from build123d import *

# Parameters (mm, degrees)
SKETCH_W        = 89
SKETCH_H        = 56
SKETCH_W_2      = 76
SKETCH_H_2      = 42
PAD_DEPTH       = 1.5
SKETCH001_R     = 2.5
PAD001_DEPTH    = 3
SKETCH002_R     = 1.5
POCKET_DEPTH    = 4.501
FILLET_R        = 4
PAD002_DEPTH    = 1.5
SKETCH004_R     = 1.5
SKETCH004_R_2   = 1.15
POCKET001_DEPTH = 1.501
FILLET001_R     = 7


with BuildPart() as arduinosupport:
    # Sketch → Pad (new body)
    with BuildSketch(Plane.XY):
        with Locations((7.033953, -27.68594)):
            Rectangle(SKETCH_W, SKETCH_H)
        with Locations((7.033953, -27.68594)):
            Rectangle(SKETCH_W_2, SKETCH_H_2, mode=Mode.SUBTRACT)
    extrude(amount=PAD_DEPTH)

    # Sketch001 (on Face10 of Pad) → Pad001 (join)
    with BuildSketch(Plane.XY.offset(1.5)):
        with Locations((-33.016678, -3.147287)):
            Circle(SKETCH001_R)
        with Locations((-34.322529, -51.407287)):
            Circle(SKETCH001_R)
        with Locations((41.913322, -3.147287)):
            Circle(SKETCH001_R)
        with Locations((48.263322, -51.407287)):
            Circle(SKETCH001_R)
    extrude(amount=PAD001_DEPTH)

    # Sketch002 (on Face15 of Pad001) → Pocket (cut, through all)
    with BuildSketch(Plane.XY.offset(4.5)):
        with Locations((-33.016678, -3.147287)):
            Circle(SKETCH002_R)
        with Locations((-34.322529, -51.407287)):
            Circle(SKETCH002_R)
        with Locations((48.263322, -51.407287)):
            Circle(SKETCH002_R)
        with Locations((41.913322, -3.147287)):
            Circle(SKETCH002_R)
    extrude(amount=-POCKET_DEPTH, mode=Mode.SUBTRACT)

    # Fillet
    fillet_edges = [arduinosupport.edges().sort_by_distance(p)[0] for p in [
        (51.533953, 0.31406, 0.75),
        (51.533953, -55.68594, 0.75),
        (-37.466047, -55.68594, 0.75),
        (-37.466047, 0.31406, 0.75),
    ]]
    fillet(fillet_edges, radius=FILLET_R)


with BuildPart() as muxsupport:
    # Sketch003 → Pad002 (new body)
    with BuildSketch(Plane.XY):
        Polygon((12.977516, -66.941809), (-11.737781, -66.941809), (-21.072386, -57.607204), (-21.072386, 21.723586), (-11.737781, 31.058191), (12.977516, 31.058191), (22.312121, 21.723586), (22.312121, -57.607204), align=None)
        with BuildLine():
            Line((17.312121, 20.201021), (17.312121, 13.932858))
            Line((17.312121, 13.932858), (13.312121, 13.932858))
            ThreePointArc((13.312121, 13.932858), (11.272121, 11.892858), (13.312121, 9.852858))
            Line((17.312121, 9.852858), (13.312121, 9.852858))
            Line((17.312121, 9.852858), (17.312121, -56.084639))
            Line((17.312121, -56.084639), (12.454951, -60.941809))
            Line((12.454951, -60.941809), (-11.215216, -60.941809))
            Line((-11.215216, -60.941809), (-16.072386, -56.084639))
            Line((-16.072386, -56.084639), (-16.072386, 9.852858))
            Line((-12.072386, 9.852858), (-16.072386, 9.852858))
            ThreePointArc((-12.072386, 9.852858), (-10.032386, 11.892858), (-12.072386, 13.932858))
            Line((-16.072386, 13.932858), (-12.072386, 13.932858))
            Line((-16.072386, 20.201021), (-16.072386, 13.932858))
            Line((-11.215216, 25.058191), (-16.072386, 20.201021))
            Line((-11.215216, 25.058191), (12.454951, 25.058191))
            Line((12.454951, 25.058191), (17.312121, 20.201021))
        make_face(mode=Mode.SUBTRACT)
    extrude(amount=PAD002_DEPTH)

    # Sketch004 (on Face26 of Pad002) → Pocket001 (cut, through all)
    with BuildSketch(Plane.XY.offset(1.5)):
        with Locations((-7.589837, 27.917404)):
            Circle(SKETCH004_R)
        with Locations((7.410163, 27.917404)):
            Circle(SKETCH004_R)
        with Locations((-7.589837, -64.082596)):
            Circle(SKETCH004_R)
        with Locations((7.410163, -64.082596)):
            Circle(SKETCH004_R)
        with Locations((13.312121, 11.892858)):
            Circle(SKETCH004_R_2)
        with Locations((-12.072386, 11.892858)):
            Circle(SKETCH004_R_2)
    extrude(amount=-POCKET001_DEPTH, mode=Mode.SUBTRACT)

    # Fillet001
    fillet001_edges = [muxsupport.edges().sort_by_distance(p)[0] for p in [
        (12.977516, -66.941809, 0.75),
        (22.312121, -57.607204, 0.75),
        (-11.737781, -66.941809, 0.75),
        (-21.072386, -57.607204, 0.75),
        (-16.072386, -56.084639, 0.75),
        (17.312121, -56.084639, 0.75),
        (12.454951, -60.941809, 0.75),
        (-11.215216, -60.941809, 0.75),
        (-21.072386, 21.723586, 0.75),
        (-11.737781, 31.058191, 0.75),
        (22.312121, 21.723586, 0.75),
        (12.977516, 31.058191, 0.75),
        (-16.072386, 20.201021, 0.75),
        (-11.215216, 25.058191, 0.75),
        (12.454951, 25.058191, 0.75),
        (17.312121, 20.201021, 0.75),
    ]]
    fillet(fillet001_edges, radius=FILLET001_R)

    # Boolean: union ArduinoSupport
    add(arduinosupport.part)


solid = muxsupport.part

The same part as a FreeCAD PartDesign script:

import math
import FreeCAD as App
import Part
import Sketcher


def edges_at(feature, points):
    """Names of the edges that pass closest to the given points."""
    edges = feature.Shape.Edges
    near = lambda p: min(range(len(edges)), key=lambda i: edges[i].distToShape(Part.Vertex(*p))[0])
    return sorted({f"Edge{near(p) + 1}" for p in points})

doc = App.newDocument("Part")
body = doc.addObject("PartDesign::Body", "Body")

sketch1 = doc.addObject("Sketcher::SketchObject", "Sketch")
body.addObject(sketch1)
sketch1.AttachmentSupport = (doc.XY_Plane, [""])
sketch1.MapMode = "FlatFace"
sketch1.addGeometry([
    Part.LineSegment(App.Vector(-37, 0, 0), App.Vector(-37, -56, 0)),
    Part.LineSegment(App.Vector(-37, -56, 0), App.Vector(52, -56, 0)),
    Part.LineSegment(App.Vector(52, -56, 0), App.Vector(52, 0, 0)),
    Part.LineSegment(App.Vector(52, 0, 0), App.Vector(-37, 0, 0)),
    Part.LineSegment(App.Vector(45, -49, 0), App.Vector(-31, -49, 0)),
    Part.LineSegment(App.Vector(-31, -49, 0), App.Vector(-31, -7, 0)),
    Part.LineSegment(App.Vector(-31, -7, 0), App.Vector(45, -7, 0)),
    Part.LineSegment(App.Vector(45, -7, 0), App.Vector(45, -49, 0)),
], False)
sketch1.addConstraint([
    Sketcher.Constraint("Coincident", 0, 2, 1, 1),
    Sketcher.Constraint("Coincident", 1, 2, 2, 1),
    Sketcher.Constraint("Coincident", 2, 2, 3, 1),
    Sketcher.Constraint("Coincident", 3, 2, 0, 1),
    Sketcher.Constraint("Coincident", 4, 2, 5, 1),
    Sketcher.Constraint("Coincident", 5, 2, 6, 1),
    Sketcher.Constraint("Coincident", 6, 2, 7, 1),
    Sketcher.Constraint("Coincident", 7, 2, 4, 1),
    Sketcher.Constraint("Vertical", 0),
    Sketcher.Constraint("Horizontal", 1),
    Sketcher.Constraint("Vertical", 2),
    Sketcher.Constraint("Horizontal", 3),
    Sketcher.Constraint("Horizontal", 4),
    Sketcher.Constraint("Vertical", 5),
    Sketcher.Constraint("Horizontal", 6),
    Sketcher.Constraint("Vertical", 7),
    Sketcher.Constraint("DistanceX", 1, 1, 1, 2, 89.0),
    Sketcher.Constraint("DistanceX", 4, 2, 4, 1, 76.0),
    Sketcher.Constraint("DistanceY", 0, 2, 0, 1, 56.0),
    Sketcher.Constraint("DistanceY", 5, 1, 5, 2, 42.0),
    Sketcher.Constraint("DistanceY", 0, 2, 4, 2, 7.0),
    Sketcher.Constraint("DistanceX", 0, 2, 4, 2, 6.5),
    Sketcher.Constraint("DistanceY", 0, 2, -1, 1, 55.68594),
    Sketcher.Constraint("DistanceX", 0, 2, -1, 1, 37.466047),
])
pad1 = doc.addObject("PartDesign::Pad", "Pad")
body.addObject(pad1)
pad1.Profile = sketch1
pad1.Length = 1.5

sketch2 = doc.addObject("Sketcher::SketchObject", "Sketch001")
body.addObject(sketch2)
sketch2.AttachmentSupport = (doc.XY_Plane, [""])
sketch2.MapMode = "FlatFace"
sketch2.AttachmentOffset = App.Placement(App.Vector(0, 0, 1.5), App.Rotation())
sketch2.addGeometry([
    Part.Circle(App.Vector(-33, -3.1, 0), App.Vector(0, 0, 1), 2.5),
    Part.Circle(App.Vector(-34.3, -51.4, 0), App.Vector(0, 0, 1), 2.5),
    Part.Circle(App.Vector(41.9, -3.1, 0), App.Vector(0, 0, 1), 2.5),
    Part.Circle(App.Vector(48.3, -51.4, 0), App.Vector(0, 0, 1), 2.5),
], False)
sketch2.addConstraint([
    Sketcher.Constraint("Equal", 0, 1),
    Sketcher.Constraint("Equal", 1, 2),
    Sketcher.Constraint("Equal", 2, 3),
    Sketcher.Constraint("Horizontal", 0, 3, 2, 3),
    Sketcher.Constraint("Horizontal", 1, 3, 3, 3),
    Sketcher.Constraint("Diameter", 0, 5.0),
    Sketcher.Constraint("DistanceY", 1, 3, 0, 3, 48.26),
    Sketcher.Constraint("DistanceX", 0, 3, 2, 3, 74.93),
    Sketcher.Constraint("DistanceX", 2, 3, 3, 3, 6.35),
    Sketcher.Constraint("DistanceX", 1, 3, -1, 1, 34.322529),
    Sketcher.Constraint("DistanceX", 1, 3, 0, 3, 1.305851),
    Sketcher.Constraint("DistanceY", 0, 3, -1, 1, 3.147287),
])
pad2 = doc.addObject("PartDesign::Pad", "Pad001")
body.addObject(pad2)
pad2.Profile = sketch2
pad2.Length = 3

sketch3 = doc.addObject("Sketcher::SketchObject", "Sketch002")
body.addObject(sketch3)
sketch3.AttachmentSupport = (doc.XY_Plane, [""])
sketch3.MapMode = "FlatFace"
sketch3.AttachmentOffset = App.Placement(App.Vector(0, 0, 4.5), App.Rotation())
sketch3.addGeometry([
    Part.Circle(App.Vector(-33, -3.1, 0), App.Vector(0, 0, 1), 1.5),
    Part.Circle(App.Vector(-34.3, -51.4, 0), App.Vector(0, 0, 1), 1.5),
    Part.Circle(App.Vector(48.3, -51.4, 0), App.Vector(0, 0, 1), 1.5),
    Part.Circle(App.Vector(41.9, -3.1, 0), App.Vector(0, 0, 1), 1.5),
], False)
sketch3.addConstraint([
    Sketcher.Constraint("Equal", 0, 1),
    Sketcher.Constraint("Equal", 1, 2),
    Sketcher.Constraint("Equal", 2, 3),
    Sketcher.Constraint("Horizontal", 1, 3, 2, 3),
    Sketcher.Constraint("Horizontal", 0, 3, 3, 3),
    Sketcher.Constraint("Diameter", 0, 3.0),
    Sketcher.Constraint("DistanceY", 1, 3, 0, 3, 48.26),
    Sketcher.Constraint("DistanceX", 0, 3, 2, 3, 81.28),
    Sketcher.Constraint("DistanceX", 3, 3, 2, 3, 6.35),
    Sketcher.Constraint("DistanceX", 1, 3, -1, 1, 34.322529),
    Sketcher.Constraint("DistanceX", 1, 3, 0, 3, 1.305851),
    Sketcher.Constraint("DistanceY", 0, 3, -1, 1, 3.147287),
])
pocket1 = doc.addObject("PartDesign::Pocket", "Pocket")
body.addObject(pocket1)
pocket1.Profile = sketch3
pocket1.Type = "ThroughAll"
doc.recompute()

fillet = doc.addObject("PartDesign::Fillet", "Fillet")
body.addObject(fillet)
fillet.Base = (pocket1, edges_at(pocket1, [
    (51.534, 0.314, 0.75),
    (51.534, -55.686, 0.75),
    (-37.466, -55.686, 0.75),
    (-37.466, 0.314, 0.75),
]))
fillet.Radius = 4
body2 = doc.addObject("PartDesign::Body", "Body001")

sketch4 = doc.addObject("Sketcher::SketchObject", "Sketch003")
body2.addObject(sketch4)
sketch4.AttachmentSupport = (doc.getObject("XY_Plane001"), [""])
sketch4.MapMode = "FlatFace"
sketch4.addGeometry([
    Part.LineSegment(App.Vector(-11.7, -66.9, 0), App.Vector(13, -66.9, 0)),
    Part.LineSegment(App.Vector(13, -66.9, 0), App.Vector(22.3, -57.6, 0)),
    Part.LineSegment(App.Vector(22.3, -57.6, 0), App.Vector(22.3, 21.7, 0)),
    Part.LineSegment(App.Vector(22.3, 21.7, 0), App.Vector(13, 31.1, 0)),
    Part.LineSegment(App.Vector(13, 31.1, 0), App.Vector(-11.7, 31.1, 0)),
    Part.LineSegment(App.Vector(-11.7, 31.1, 0), App.Vector(-21.1, 21.7, 0)),
    Part.LineSegment(App.Vector(-21.1, 21.7, 0), App.Vector(-21.1, -57.6, 0)),
    Part.LineSegment(App.Vector(-21.1, -57.6, 0), App.Vector(-11.7, -66.9, 0)),
    Part.LineSegment(App.Vector(17.3, 20.2, 0), App.Vector(17.3, 13.9, 0)),
    Part.LineSegment(App.Vector(17.3, 13.9, 0), App.Vector(13.3, 13.9, 0)),
    Part.ArcOfCircle(Part.Circle(App.Vector(13.3, 11.9, 0), App.Vector(0, 0, 1), 2), math.radians(90), math.radians(270)),
    Part.LineSegment(App.Vector(13.3, 9.9, 0), App.Vector(17.3, 9.9, 0)),
    Part.LineSegment(App.Vector(17.3, 9.9, 0), App.Vector(17.3, -56.1, 0)),
    Part.LineSegment(App.Vector(17.3, -56.1, 0), App.Vector(12.5, -60.9, 0)),
    Part.LineSegment(App.Vector(12.5, -60.9, 0), App.Vector(-11.2, -60.9, 0)),
    Part.LineSegment(App.Vector(-11.2, -60.9, 0), App.Vector(-16.1, -56.1, 0)),
    Part.LineSegment(App.Vector(-16.1, -56.1, 0), App.Vector(-16.1, 9.9, 0)),
    Part.LineSegment(App.Vector(-16.1, 9.9, 0), App.Vector(-12.1, 9.9, 0)),
    Part.ArcOfCircle(Part.Circle(App.Vector(-12.1, 11.9, 0), App.Vector(0, 0, 1), 2), math.radians(-90), math.radians(90)),
    Part.LineSegment(App.Vector(-12.1, 13.9, 0), App.Vector(-16.1, 13.9, 0)),
    Part.LineSegment(App.Vector(-16.1, 13.9, 0), App.Vector(-16.1, 20.2, 0)),
    Part.LineSegment(App.Vector(-16.1, 20.2, 0), App.Vector(-11.2, 25.1, 0)),
    Part.LineSegment(App.Vector(-11.2, 25.1, 0), App.Vector(12.5, 25.1, 0)),
    Part.LineSegment(App.Vector(12.5, 25.1, 0), App.Vector(17.3, 20.2, 0)),
], False)
sketch4.addConstraint([
    Sketcher.Constraint("Coincident", 0, 2, 1, 1),
    Sketcher.Constraint("Coincident", 1, 2, 2, 1),
    Sketcher.Constraint("Coincident", 2, 2, 3, 1),
    Sketcher.Constraint("Coincident", 3, 2, 4, 1),
    Sketcher.Constraint("Coincident", 4, 2, 5, 1),
    Sketcher.Constraint("Coincident", 5, 2, 6, 1),
    Sketcher.Constraint("Coincident", 6, 2, 7, 1),
    Sketcher.Constraint("Coincident", 7, 2, 0, 1),
    Sketcher.Constraint("Coincident", 8, 2, 9, 1),
    Sketcher.Constraint("Tangent", 9, 2, 10, 1),
    Sketcher.Constraint("Tangent", 10, 2, 11, 1),
    Sketcher.Constraint("Coincident", 11, 2, 12, 1),
    Sketcher.Constraint("Coincident", 12, 2, 13, 1),
    Sketcher.Constraint("Coincident", 13, 2, 14, 1),
    Sketcher.Constraint("Coincident", 14, 2, 15, 1),
    Sketcher.Constraint("Coincident", 15, 2, 16, 1),
    Sketcher.Constraint("Coincident", 16, 2, 17, 1),
    Sketcher.Constraint("Tangent", 17, 2, 18, 1),
    Sketcher.Constraint("Tangent", 18, 2, 19, 1),
    Sketcher.Constraint("Coincident", 19, 2, 20, 1),
    Sketcher.Constraint("Coincident", 20, 2, 21, 1),
    Sketcher.Constraint("Coincident", 21, 2, 22, 1),
    Sketcher.Constraint("Coincident", 22, 2, 23, 1),
    Sketcher.Constraint("Coincident", 23, 2, 8, 1),
    Sketcher.Constraint("Horizontal", 0),
    Sketcher.Constraint("Vertical", 2),
    Sketcher.Constraint("Horizontal", 4),
    Sketcher.Constraint("Vertical", 6),
    Sketcher.Constraint("Vertical", 8),
    Sketcher.Constraint("Horizontal", 9),
    Sketcher.Constraint("Horizontal", 11),
    Sketcher.Constraint("Vertical", 12),
    Sketcher.Constraint("Horizontal", 14),
    Sketcher.Constraint("Vertical", 16),
    Sketcher.Constraint("Horizontal", 17),
    Sketcher.Constraint("Horizontal", 19),
    Sketcher.Constraint("Vertical", 20),
    Sketcher.Constraint("Horizontal", 22),
    Sketcher.Constraint("Equal", 10, 18),
    Sketcher.Constraint("Perpendicular", 1, 3),
    Sketcher.Constraint("Perpendicular", 3, 5),
    Sketcher.Constraint("Perpendicular", 5, 7),
    Sketcher.Constraint("Perpendicular", 7, 13),
    Sketcher.Constraint("Perpendicular", 13, 15),
    Sketcher.Constraint("Perpendicular", 15, 21),
    Sketcher.Constraint("Perpendicular", 21, 23),
    Sketcher.Constraint("Horizontal", 10, 3, 18, 3),
    Sketcher.Constraint("Horizontal", 2, 2, 5, 2),
    Sketcher.Constraint("Horizontal", 1, 2, 6, 2),
    Sketcher.Constraint("Horizontal", 12, 2, 15, 2),
    Sketcher.Constraint("Horizontal", 20, 2, 23, 2),
    Sketcher.Constraint("Vertical", 0, 2, 3, 2),
    Sketcher.Constraint("Vertical", 4, 2, 7, 2),
    Sketcher.Constraint("Vertical", 8, 2, 11, 2),
    Sketcher.Constraint("Vertical", 16, 2, 19, 2),
    Sketcher.Constraint("Vertical", 14, 2, 21, 2),
    Sketcher.Constraint("Equal", 11, 17),
    Sketcher.Constraint("DistanceX", 9, 2, 9, 1, 4.0),
    Sketcher.Constraint("Radius", 10, 2.04),
    Sketcher.Constraint("DistanceX", 10, 3, 1, 2, 9.0),
    Sketcher.Constraint("DistanceY", 0, 2, 3, 2, 98.0),
    Sketcher.Constraint("DistanceX", 5, 2, 18, 3, 9.0),
    Sketcher.Constraint("DistanceY", 0, 2, 13, 2, 6.0),
    Sketcher.Constraint("DistanceY", 21, 2, 4, 2, 6.0),
    Sketcher.Constraint("DistanceY", 2, 1, 2, 2, 79.33079),
    Sketcher.Constraint("DistanceX", 18, 3, 0, 2, 25.049902),
    Sketcher.Constraint("DistanceX", 14, 2, 14, 1, 23.670167),
    Sketcher.Constraint("DistanceY", 8, 2, 8, 1, 6.268163),
    Sketcher.Constraint("DistanceX", -1, 1, 10, 3, 13.312121),
    Sketcher.Constraint("DistanceY", 0, 2, -1, 1, 66.941809),
])
pad3 = doc.addObject("PartDesign::Pad", "Pad002")
body2.addObject(pad3)
pad3.Profile = sketch4
pad3.Length = 1.5

sketch5 = doc.addObject("Sketcher::SketchObject", "Sketch004")
body2.addObject(sketch5)
sketch5.AttachmentSupport = (doc.getObject("XY_Plane001"), [""])
sketch5.MapMode = "FlatFace"
sketch5.AttachmentOffset = App.Placement(App.Vector(0, 0, 1.5), App.Rotation())
sketch5.addGeometry([
    Part.Circle(App.Vector(-7.6, 27.9, 0), App.Vector(0, 0, 1), 1.5),
    Part.Circle(App.Vector(7.4, 27.9, 0), App.Vector(0, 0, 1), 1.5),
    Part.Circle(App.Vector(-7.6, -64.1, 0), App.Vector(0, 0, 1), 1.5),
    Part.Circle(App.Vector(7.4, -64.1, 0), App.Vector(0, 0, 1), 1.5),
    Part.Circle(App.Vector(13.3, 11.9, 0), App.Vector(0, 0, 1), 1.1),
    Part.Circle(App.Vector(-12.1, 11.9, 0), App.Vector(0, 0, 1), 1.1),
], False)
sketch5.addConstraint([
    Sketcher.Constraint("Equal", 0, 1),
    Sketcher.Constraint("Equal", 1, 2),
    Sketcher.Constraint("Equal", 2, 3),
    Sketcher.Constraint("Equal", 4, 5),
    Sketcher.Constraint("Horizontal", 0, 3, 1, 3),
    Sketcher.Constraint("Horizontal", 2, 3, 3, 3),
    Sketcher.Constraint("Horizontal", 4, 3, 5, 3),
    Sketcher.Constraint("Vertical", 0, 3, 2, 3),
    Sketcher.Constraint("Vertical", 1, 3, 3, 3),
    Sketcher.Constraint("Diameter", 0, 3.0),
    Sketcher.Constraint("Diameter", 4, 2.3),
    Sketcher.Constraint("DistanceX", 0, 3, 1, 3, 15.0),
    Sketcher.Constraint("DistanceY", 2, 3, 0, 3, 92.0),
    Sketcher.Constraint("DistanceX", -1, 1, 4, 3, 13.312121),
    Sketcher.Constraint("DistanceX", 0, 3, 4, 3, 20.901958),
    Sketcher.Constraint("DistanceX", 5, 3, 0, 3, 4.482549),
    Sketcher.Constraint("DistanceY", -1, 1, 0, 3, 27.917404),
    Sketcher.Constraint("DistanceY", -1, 1, 4, 3, 11.892858),
])
pocket2 = doc.addObject("PartDesign::Pocket", "Pocket001")
body2.addObject(pocket2)
pocket2.Profile = sketch5
pocket2.Type = "ThroughAll"
doc.recompute()

fillet2 = doc.addObject("PartDesign::Fillet", "Fillet001")
body2.addObject(fillet2)
fillet2.Base = (pocket2, edges_at(pocket2, [
    (12.978, -66.942, 0.75),
    (22.312, -57.607, 0.75),
    (-11.738, -66.942, 0.75),
    (-21.072, -57.607, 0.75),
    (-16.072, -56.085, 0.75),
    (17.312, -56.085, 0.75),
    (12.455, -60.942, 0.75),
    (-11.215, -60.942, 0.75),
    (-21.072, 21.724, 0.75),
    (-11.738, 31.058, 0.75),
    (22.312, 21.724, 0.75),
    (12.978, 31.058, 0.75),
    (-16.072, 20.201, 0.75),
    (-11.215, 25.058, 0.75),
    (12.455, 25.058, 0.75),
    (17.312, 20.201, 0.75),
]))
fillet2.Radius = 7
doc.recompute()

boolean = doc.addObject("PartDesign::Boolean", "Boolean")
body2.addObject(boolean)
boolean.Type = "Fuse"
boolean.addObjects([body])

doc.recompute()
